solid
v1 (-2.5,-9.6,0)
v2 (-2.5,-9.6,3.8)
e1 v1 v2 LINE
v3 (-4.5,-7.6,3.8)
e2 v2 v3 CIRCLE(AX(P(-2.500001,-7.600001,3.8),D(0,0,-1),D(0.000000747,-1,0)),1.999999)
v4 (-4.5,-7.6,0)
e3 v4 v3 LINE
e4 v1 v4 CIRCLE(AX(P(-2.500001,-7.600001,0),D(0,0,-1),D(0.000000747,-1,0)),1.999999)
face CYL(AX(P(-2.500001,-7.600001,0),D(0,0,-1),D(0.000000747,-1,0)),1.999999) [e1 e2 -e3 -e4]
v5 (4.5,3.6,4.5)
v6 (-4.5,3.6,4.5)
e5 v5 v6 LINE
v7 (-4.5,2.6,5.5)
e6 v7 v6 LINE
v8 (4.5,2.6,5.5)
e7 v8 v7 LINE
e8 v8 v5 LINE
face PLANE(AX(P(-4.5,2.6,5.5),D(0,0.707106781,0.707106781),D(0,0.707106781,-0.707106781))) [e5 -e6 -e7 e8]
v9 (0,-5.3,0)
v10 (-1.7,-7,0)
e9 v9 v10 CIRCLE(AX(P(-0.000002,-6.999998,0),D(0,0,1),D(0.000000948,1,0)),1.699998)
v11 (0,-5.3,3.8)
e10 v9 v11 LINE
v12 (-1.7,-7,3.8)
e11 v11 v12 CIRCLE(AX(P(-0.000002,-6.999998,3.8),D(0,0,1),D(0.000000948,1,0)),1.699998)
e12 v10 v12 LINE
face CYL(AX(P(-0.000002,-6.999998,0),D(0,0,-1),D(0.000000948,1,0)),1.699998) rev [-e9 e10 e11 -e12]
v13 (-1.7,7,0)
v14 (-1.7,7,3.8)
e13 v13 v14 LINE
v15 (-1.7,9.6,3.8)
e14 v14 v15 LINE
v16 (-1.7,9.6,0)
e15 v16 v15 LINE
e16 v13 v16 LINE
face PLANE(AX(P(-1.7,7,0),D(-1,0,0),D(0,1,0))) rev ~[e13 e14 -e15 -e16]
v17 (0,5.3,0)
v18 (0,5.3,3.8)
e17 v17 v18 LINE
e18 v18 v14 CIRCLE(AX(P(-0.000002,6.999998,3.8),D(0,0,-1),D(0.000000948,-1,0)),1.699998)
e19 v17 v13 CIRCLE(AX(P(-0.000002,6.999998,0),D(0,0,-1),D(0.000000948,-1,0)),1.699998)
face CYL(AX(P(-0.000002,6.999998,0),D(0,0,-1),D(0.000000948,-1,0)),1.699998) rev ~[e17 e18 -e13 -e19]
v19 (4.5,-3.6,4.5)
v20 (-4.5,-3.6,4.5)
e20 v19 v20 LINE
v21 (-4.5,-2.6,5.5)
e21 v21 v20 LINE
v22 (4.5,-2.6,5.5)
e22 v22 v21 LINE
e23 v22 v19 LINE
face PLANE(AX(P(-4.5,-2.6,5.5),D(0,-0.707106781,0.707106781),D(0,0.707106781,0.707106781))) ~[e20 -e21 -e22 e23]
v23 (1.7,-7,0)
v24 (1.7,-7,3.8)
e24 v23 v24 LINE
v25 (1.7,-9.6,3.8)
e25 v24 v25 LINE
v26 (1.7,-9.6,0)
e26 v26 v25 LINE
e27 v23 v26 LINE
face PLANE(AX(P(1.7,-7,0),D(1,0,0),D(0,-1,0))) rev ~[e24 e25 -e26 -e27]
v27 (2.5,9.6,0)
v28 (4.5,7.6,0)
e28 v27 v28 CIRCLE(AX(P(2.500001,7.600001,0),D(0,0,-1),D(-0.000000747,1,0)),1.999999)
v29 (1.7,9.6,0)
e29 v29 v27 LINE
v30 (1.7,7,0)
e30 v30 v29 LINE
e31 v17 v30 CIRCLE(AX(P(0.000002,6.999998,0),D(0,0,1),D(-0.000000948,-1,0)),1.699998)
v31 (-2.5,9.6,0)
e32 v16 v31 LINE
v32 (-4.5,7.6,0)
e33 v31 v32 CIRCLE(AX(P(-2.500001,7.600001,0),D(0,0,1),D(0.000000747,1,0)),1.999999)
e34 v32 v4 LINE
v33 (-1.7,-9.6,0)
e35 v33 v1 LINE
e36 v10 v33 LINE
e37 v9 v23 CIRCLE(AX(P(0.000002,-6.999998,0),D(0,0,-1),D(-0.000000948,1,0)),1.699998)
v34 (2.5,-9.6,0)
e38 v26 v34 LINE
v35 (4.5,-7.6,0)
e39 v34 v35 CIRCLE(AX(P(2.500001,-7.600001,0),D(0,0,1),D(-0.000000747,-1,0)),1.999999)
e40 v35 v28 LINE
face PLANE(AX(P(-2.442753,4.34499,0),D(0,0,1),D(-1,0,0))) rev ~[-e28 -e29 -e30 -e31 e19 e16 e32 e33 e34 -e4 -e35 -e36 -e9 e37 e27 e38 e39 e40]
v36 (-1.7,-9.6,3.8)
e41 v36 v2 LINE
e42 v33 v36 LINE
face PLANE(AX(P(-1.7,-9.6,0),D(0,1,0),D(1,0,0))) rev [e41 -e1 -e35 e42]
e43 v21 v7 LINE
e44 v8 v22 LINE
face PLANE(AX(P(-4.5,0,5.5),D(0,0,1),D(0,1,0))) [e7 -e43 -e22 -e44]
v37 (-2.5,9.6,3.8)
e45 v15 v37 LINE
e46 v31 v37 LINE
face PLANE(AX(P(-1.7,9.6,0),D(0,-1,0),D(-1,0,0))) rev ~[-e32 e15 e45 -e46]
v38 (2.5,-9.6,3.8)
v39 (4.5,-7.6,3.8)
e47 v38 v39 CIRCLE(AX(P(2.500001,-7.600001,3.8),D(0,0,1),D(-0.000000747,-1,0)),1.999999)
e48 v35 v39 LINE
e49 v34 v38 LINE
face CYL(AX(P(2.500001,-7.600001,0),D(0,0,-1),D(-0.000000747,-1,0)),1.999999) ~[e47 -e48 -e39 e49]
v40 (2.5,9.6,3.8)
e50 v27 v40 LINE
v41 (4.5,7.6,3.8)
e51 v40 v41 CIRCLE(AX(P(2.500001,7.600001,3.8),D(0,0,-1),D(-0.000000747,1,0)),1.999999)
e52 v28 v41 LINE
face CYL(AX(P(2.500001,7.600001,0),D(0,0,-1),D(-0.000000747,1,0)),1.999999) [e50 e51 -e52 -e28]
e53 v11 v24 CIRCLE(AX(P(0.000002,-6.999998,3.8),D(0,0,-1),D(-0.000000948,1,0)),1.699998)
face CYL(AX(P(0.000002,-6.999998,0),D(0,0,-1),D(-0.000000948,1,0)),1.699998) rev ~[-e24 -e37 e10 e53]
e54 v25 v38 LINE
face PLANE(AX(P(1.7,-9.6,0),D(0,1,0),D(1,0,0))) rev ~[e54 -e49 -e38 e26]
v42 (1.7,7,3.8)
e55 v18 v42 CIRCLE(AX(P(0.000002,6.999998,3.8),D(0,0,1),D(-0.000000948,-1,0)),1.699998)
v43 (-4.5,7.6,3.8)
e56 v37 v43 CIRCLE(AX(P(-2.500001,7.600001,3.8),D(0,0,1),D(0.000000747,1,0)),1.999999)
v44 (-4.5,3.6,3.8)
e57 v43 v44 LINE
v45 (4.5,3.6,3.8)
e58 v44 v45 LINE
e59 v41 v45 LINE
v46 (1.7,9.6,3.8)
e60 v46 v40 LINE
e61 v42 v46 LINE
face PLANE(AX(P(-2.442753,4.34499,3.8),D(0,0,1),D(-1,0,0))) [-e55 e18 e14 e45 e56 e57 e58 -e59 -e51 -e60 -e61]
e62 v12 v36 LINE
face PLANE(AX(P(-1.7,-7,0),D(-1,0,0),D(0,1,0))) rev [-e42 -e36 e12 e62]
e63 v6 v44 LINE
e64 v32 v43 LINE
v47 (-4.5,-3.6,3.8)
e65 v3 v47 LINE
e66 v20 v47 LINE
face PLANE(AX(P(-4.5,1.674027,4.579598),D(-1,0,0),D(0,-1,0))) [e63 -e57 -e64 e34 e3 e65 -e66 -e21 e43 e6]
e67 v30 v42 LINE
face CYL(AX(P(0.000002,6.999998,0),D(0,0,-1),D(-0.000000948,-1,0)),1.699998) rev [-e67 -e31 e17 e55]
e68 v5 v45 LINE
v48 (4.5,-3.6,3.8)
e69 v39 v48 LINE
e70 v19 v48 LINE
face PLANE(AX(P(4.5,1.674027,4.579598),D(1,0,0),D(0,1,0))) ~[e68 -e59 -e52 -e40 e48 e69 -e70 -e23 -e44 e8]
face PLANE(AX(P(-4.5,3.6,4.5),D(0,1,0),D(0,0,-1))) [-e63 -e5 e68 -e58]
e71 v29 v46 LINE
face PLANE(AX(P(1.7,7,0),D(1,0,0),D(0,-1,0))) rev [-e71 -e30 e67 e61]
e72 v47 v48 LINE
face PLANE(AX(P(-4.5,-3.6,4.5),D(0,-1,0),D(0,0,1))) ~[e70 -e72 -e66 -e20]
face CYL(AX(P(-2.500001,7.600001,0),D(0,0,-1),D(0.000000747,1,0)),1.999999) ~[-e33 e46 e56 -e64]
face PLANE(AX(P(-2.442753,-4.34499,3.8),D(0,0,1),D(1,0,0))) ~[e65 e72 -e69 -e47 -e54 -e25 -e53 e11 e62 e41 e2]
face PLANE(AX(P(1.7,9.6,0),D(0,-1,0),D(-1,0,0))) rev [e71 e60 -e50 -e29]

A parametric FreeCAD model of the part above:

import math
import FreeCAD as App
import Part
import Sketcher
from FreeCAD import Vector
Q = App.Units.Quantity

doc = App.newDocument("Part")
params = doc.addObject("Spreadsheet::Sheet", "Params")
for row, (alias, value) in enumerate([
    ("sketch1_radius", "1.999999 mm"),
    ("sketch1_radius2", "1.699998 mm"),
    ("sketch1_width", "4.5 mm"),
    ("sketch1_height", "7.6 mm"),
    ("sketch1_height2", "5.3 mm"),
    ("pad1_length", "3.8 mm"),
    ("sketch2_width", "3.6 mm"),
    ("sketch2_width2", "2.6 mm"),
    ("sketch2_height", "0.7 mm"),
    ("pad2_length", "4.5 mm"),
], start=1):
    params.set(f"A{row}", alias)
    params.set(f"B{row}", "=" + value)
    params.setAlias(f"B{row}", alias)

body = doc.addObject("PartDesign::Body", "Body")

# Sketch on XY plane
sketch1 = doc.addObject("Sketcher::SketchObject", "Sketch")
body.addObject(sketch1)
sketch1.AttachmentSupport = (doc.XY_Plane, [""])
sketch1.MapMode = "FlatFace"
sketch1.addGeometry([
    Part.LineSegment(Vector(4.5, -7.6, 0), Vector(4.5, 0, 0)),  # 0
    Part.LineSegment(Vector(4.5, 0, 0), Vector(0, 0, 0)),  # 1
    Part.LineSegment(Vector(0, 0, 0), Vector(0, -5.3, 0)),  # 2
    Part.ArcOfCircle(Part.Circle(Vector(0, -7, 0), Vector(0, 0, 1), 1.7), math.radians(0), math.radians(90)),  # 3
    Part.LineSegment(Vector(1.7, -7, 0), Vector(1.7, -9.6, 0)),  # 4
    Part.LineSegment(Vector(1.7, -9.6, 0), Vector(2.5, -9.6, 0)),  # 5
    Part.ArcOfCircle(Part.Circle(Vector(2.5, -7.6, 0), Vector(0, 0, 1), 2), math.radians(-90), math.radians(0)),  # 6
], False)
sketch1.addConstraint([
    Sketcher.Constraint("Coincident", 0, 2, 1, 1),
    Sketcher.Constraint("Coincident", 1, 2, 2, 1),
    Sketcher.Constraint("Coincident", 2, 2, 3, 2),
    Sketcher.Constraint("Tangent", 3, 1, 4, 1),
    Sketcher.Constraint("Coincident", 4, 2, 5, 1),
    Sketcher.Constraint("Tangent", 5, 2, 6, 1),
    Sketcher.Constraint("Tangent", 6, 2, 0, 1),
    Sketcher.Constraint("Vertical", 0),
    Sketcher.Constraint("Horizontal", 1),
    Sketcher.Constraint("Vertical", 2),
    Sketcher.Constraint("Vertical", 4),
    Sketcher.Constraint("Horizontal", 5),
    Sketcher.Constraint("Coincident", 1, 2, -1, 1),
    Sketcher.Constraint("PointOnObject", 3, 3, -2),
    Sketcher.Constraint("Radius", 6, Q("1.999999 mm")),
    Sketcher.Constraint("Radius", 3, Q("1.699998 mm")),
    Sketcher.Constraint("DistanceX", 1, 2, 1, 1, Q("4.5 mm")),
    Sketcher.Constraint("DistanceY", 0, 1, 0, 2, Q("7.6 mm")),
    Sketcher.Constraint("DistanceY", 2, 2, 2, 1, Q("5.3 mm")),
])
sketch1.setExpression("Constraints[14]", "Params.sketch1_radius")
sketch1.setExpression("Constraints[15]", "Params.sketch1_radius2")
sketch1.setExpression("Constraints[16]", "Params.sketch1_width")
sketch1.setExpression("Constraints[17]", "Params.sketch1_height")
sketch1.setExpression("Constraints[18]", "Params.sketch1_height2")
pad1 = doc.addObject("PartDesign::Pad", "Pad")
body.addObject(pad1)
pad1.Profile = sketch1
pad1.setExpression("Length", "Params.pad1_length")

# Sketch on YZ plane
sketch2 = doc.addObject("Sketcher::SketchObject", "Sketch001")
body.addObject(sketch2)
sketch2.AttachmentSupport = (doc.YZ_Plane, [""])
sketch2.MapMode = "FlatFace"
sketch2.AttachmentOffset = App.Placement(Vector(0, 0, 4.5), App.Rotation())
sketch2.addGeometry([
    Part.LineSegment(Vector(-3.6, 4.5, 0), Vector(-3.6, 3.8, 0)),  # 0
    Part.LineSegment(Vector(-3.6, 3.8, 0), Vector(0, 3.8, 0)),  # 1
    Part.LineSegment(Vector(0, 3.8, 0), Vector(0, 5.5, 0)),  # 2
    Part.LineSegment(Vector(0, 5.5, 0), Vector(-2.6, 5.5, 0)),  # 3
    Part.LineSegment(Vector(-2.6, 5.5, 0), Vector(-3.6, 4.5, 0)),  # 4
], False)
sketch2.addConstraint([
    Sketcher.Constraint("Coincident", 0, 2, 1, 1),
    Sketcher.Constraint("Coincident", 1, 2, 2, 1),
    Sketcher.Constraint("Coincident", 2, 2, 3, 1),
    Sketcher.Constraint("Coincident", 3, 2, 4, 1),
    Sketcher.Constraint("Coincident", 4, 2, 0, 1),
    Sketcher.Constraint("Vertical", 0),
    Sketcher.Constraint("Horizontal", 1),
    Sketcher.Constraint("Vertical", 2),
    Sketcher.Constraint("Horizontal", 3),
    Sketcher.Constraint("PointOnObject", 1, 2, -2),
    Sketcher.Constraint("Angle", 4, Q("-135 deg")),
    Sketcher.Constraint("DistanceX", 1, 1, 1, 2, Q("3.6 mm")),
    Sketcher.Constraint("DistanceX", 3, 2, 3, 1, Q("2.6 mm")),
    Sketcher.Constraint("DistanceY", 0, 2, 0, 1, Q("0.7 mm")),
    Sketcher.Constraint("DistanceY", -1, 1, 0, 2, Q("3.8 mm")),
])
sketch2.setExpression("Constraints[11]", "Params.sketch2_width")
sketch2.setExpression("Constraints[12]", "Params.sketch2_width2")
sketch2.setExpression("Constraints[13]", "Params.sketch2_height")
pad2 = doc.addObject("PartDesign::Pad", "Pad001")
body.addObject(pad2)
pad2.Profile = sketch2
pad2.setExpression("Length", "Params.pad2_length")
pad2.Reversed = True
body2 = doc.addObject("PartDesign::Body", "Body001")
doc.recompute()

body2.BaseFeature = body
doc.recompute()

mirroring = doc.addObject("Part::Mirroring", "Mirroring")
mirroring.Source = body
mirroring.Base = Vector(0, -2.43609, 2.489933)
mirroring.Normal = Vector(-1, 0, 0)
body3 = doc.addObject("PartDesign::Body", "Body002")
body3.BaseFeature = mirroring
boolean = doc.addObject("PartDesign::Boolean", "Boolean")
body2.addObject(boolean)
boolean.Type = "Fuse"
boolean.addObjects([body3])
doc.recompute()
body4 = doc.addObject("PartDesign::Body", "Body003")
doc.recompute()

body4.BaseFeature = body2
doc.recompute()

mirroring2 = doc.addObject("Part::Mirroring", "Mirroring001")
mirroring2.Source = body2
mirroring2.Base = Vector(0, 0, 2.75)
mirroring2.Normal = Vector(0, 1, 0)
body5 = doc.addObject("PartDesign::Body", "Body004")
body5.BaseFeature = mirroring2
boolean2 = doc.addObject("PartDesign::Boolean", "Boolean001")
body4.addObject(boolean2)
boolean2.Type = "Fuse"
boolean2.addObjects([body5])
doc.recompute()
mirroring.Visibility = False
mirroring2.Visibility = False

doc.recompute()
